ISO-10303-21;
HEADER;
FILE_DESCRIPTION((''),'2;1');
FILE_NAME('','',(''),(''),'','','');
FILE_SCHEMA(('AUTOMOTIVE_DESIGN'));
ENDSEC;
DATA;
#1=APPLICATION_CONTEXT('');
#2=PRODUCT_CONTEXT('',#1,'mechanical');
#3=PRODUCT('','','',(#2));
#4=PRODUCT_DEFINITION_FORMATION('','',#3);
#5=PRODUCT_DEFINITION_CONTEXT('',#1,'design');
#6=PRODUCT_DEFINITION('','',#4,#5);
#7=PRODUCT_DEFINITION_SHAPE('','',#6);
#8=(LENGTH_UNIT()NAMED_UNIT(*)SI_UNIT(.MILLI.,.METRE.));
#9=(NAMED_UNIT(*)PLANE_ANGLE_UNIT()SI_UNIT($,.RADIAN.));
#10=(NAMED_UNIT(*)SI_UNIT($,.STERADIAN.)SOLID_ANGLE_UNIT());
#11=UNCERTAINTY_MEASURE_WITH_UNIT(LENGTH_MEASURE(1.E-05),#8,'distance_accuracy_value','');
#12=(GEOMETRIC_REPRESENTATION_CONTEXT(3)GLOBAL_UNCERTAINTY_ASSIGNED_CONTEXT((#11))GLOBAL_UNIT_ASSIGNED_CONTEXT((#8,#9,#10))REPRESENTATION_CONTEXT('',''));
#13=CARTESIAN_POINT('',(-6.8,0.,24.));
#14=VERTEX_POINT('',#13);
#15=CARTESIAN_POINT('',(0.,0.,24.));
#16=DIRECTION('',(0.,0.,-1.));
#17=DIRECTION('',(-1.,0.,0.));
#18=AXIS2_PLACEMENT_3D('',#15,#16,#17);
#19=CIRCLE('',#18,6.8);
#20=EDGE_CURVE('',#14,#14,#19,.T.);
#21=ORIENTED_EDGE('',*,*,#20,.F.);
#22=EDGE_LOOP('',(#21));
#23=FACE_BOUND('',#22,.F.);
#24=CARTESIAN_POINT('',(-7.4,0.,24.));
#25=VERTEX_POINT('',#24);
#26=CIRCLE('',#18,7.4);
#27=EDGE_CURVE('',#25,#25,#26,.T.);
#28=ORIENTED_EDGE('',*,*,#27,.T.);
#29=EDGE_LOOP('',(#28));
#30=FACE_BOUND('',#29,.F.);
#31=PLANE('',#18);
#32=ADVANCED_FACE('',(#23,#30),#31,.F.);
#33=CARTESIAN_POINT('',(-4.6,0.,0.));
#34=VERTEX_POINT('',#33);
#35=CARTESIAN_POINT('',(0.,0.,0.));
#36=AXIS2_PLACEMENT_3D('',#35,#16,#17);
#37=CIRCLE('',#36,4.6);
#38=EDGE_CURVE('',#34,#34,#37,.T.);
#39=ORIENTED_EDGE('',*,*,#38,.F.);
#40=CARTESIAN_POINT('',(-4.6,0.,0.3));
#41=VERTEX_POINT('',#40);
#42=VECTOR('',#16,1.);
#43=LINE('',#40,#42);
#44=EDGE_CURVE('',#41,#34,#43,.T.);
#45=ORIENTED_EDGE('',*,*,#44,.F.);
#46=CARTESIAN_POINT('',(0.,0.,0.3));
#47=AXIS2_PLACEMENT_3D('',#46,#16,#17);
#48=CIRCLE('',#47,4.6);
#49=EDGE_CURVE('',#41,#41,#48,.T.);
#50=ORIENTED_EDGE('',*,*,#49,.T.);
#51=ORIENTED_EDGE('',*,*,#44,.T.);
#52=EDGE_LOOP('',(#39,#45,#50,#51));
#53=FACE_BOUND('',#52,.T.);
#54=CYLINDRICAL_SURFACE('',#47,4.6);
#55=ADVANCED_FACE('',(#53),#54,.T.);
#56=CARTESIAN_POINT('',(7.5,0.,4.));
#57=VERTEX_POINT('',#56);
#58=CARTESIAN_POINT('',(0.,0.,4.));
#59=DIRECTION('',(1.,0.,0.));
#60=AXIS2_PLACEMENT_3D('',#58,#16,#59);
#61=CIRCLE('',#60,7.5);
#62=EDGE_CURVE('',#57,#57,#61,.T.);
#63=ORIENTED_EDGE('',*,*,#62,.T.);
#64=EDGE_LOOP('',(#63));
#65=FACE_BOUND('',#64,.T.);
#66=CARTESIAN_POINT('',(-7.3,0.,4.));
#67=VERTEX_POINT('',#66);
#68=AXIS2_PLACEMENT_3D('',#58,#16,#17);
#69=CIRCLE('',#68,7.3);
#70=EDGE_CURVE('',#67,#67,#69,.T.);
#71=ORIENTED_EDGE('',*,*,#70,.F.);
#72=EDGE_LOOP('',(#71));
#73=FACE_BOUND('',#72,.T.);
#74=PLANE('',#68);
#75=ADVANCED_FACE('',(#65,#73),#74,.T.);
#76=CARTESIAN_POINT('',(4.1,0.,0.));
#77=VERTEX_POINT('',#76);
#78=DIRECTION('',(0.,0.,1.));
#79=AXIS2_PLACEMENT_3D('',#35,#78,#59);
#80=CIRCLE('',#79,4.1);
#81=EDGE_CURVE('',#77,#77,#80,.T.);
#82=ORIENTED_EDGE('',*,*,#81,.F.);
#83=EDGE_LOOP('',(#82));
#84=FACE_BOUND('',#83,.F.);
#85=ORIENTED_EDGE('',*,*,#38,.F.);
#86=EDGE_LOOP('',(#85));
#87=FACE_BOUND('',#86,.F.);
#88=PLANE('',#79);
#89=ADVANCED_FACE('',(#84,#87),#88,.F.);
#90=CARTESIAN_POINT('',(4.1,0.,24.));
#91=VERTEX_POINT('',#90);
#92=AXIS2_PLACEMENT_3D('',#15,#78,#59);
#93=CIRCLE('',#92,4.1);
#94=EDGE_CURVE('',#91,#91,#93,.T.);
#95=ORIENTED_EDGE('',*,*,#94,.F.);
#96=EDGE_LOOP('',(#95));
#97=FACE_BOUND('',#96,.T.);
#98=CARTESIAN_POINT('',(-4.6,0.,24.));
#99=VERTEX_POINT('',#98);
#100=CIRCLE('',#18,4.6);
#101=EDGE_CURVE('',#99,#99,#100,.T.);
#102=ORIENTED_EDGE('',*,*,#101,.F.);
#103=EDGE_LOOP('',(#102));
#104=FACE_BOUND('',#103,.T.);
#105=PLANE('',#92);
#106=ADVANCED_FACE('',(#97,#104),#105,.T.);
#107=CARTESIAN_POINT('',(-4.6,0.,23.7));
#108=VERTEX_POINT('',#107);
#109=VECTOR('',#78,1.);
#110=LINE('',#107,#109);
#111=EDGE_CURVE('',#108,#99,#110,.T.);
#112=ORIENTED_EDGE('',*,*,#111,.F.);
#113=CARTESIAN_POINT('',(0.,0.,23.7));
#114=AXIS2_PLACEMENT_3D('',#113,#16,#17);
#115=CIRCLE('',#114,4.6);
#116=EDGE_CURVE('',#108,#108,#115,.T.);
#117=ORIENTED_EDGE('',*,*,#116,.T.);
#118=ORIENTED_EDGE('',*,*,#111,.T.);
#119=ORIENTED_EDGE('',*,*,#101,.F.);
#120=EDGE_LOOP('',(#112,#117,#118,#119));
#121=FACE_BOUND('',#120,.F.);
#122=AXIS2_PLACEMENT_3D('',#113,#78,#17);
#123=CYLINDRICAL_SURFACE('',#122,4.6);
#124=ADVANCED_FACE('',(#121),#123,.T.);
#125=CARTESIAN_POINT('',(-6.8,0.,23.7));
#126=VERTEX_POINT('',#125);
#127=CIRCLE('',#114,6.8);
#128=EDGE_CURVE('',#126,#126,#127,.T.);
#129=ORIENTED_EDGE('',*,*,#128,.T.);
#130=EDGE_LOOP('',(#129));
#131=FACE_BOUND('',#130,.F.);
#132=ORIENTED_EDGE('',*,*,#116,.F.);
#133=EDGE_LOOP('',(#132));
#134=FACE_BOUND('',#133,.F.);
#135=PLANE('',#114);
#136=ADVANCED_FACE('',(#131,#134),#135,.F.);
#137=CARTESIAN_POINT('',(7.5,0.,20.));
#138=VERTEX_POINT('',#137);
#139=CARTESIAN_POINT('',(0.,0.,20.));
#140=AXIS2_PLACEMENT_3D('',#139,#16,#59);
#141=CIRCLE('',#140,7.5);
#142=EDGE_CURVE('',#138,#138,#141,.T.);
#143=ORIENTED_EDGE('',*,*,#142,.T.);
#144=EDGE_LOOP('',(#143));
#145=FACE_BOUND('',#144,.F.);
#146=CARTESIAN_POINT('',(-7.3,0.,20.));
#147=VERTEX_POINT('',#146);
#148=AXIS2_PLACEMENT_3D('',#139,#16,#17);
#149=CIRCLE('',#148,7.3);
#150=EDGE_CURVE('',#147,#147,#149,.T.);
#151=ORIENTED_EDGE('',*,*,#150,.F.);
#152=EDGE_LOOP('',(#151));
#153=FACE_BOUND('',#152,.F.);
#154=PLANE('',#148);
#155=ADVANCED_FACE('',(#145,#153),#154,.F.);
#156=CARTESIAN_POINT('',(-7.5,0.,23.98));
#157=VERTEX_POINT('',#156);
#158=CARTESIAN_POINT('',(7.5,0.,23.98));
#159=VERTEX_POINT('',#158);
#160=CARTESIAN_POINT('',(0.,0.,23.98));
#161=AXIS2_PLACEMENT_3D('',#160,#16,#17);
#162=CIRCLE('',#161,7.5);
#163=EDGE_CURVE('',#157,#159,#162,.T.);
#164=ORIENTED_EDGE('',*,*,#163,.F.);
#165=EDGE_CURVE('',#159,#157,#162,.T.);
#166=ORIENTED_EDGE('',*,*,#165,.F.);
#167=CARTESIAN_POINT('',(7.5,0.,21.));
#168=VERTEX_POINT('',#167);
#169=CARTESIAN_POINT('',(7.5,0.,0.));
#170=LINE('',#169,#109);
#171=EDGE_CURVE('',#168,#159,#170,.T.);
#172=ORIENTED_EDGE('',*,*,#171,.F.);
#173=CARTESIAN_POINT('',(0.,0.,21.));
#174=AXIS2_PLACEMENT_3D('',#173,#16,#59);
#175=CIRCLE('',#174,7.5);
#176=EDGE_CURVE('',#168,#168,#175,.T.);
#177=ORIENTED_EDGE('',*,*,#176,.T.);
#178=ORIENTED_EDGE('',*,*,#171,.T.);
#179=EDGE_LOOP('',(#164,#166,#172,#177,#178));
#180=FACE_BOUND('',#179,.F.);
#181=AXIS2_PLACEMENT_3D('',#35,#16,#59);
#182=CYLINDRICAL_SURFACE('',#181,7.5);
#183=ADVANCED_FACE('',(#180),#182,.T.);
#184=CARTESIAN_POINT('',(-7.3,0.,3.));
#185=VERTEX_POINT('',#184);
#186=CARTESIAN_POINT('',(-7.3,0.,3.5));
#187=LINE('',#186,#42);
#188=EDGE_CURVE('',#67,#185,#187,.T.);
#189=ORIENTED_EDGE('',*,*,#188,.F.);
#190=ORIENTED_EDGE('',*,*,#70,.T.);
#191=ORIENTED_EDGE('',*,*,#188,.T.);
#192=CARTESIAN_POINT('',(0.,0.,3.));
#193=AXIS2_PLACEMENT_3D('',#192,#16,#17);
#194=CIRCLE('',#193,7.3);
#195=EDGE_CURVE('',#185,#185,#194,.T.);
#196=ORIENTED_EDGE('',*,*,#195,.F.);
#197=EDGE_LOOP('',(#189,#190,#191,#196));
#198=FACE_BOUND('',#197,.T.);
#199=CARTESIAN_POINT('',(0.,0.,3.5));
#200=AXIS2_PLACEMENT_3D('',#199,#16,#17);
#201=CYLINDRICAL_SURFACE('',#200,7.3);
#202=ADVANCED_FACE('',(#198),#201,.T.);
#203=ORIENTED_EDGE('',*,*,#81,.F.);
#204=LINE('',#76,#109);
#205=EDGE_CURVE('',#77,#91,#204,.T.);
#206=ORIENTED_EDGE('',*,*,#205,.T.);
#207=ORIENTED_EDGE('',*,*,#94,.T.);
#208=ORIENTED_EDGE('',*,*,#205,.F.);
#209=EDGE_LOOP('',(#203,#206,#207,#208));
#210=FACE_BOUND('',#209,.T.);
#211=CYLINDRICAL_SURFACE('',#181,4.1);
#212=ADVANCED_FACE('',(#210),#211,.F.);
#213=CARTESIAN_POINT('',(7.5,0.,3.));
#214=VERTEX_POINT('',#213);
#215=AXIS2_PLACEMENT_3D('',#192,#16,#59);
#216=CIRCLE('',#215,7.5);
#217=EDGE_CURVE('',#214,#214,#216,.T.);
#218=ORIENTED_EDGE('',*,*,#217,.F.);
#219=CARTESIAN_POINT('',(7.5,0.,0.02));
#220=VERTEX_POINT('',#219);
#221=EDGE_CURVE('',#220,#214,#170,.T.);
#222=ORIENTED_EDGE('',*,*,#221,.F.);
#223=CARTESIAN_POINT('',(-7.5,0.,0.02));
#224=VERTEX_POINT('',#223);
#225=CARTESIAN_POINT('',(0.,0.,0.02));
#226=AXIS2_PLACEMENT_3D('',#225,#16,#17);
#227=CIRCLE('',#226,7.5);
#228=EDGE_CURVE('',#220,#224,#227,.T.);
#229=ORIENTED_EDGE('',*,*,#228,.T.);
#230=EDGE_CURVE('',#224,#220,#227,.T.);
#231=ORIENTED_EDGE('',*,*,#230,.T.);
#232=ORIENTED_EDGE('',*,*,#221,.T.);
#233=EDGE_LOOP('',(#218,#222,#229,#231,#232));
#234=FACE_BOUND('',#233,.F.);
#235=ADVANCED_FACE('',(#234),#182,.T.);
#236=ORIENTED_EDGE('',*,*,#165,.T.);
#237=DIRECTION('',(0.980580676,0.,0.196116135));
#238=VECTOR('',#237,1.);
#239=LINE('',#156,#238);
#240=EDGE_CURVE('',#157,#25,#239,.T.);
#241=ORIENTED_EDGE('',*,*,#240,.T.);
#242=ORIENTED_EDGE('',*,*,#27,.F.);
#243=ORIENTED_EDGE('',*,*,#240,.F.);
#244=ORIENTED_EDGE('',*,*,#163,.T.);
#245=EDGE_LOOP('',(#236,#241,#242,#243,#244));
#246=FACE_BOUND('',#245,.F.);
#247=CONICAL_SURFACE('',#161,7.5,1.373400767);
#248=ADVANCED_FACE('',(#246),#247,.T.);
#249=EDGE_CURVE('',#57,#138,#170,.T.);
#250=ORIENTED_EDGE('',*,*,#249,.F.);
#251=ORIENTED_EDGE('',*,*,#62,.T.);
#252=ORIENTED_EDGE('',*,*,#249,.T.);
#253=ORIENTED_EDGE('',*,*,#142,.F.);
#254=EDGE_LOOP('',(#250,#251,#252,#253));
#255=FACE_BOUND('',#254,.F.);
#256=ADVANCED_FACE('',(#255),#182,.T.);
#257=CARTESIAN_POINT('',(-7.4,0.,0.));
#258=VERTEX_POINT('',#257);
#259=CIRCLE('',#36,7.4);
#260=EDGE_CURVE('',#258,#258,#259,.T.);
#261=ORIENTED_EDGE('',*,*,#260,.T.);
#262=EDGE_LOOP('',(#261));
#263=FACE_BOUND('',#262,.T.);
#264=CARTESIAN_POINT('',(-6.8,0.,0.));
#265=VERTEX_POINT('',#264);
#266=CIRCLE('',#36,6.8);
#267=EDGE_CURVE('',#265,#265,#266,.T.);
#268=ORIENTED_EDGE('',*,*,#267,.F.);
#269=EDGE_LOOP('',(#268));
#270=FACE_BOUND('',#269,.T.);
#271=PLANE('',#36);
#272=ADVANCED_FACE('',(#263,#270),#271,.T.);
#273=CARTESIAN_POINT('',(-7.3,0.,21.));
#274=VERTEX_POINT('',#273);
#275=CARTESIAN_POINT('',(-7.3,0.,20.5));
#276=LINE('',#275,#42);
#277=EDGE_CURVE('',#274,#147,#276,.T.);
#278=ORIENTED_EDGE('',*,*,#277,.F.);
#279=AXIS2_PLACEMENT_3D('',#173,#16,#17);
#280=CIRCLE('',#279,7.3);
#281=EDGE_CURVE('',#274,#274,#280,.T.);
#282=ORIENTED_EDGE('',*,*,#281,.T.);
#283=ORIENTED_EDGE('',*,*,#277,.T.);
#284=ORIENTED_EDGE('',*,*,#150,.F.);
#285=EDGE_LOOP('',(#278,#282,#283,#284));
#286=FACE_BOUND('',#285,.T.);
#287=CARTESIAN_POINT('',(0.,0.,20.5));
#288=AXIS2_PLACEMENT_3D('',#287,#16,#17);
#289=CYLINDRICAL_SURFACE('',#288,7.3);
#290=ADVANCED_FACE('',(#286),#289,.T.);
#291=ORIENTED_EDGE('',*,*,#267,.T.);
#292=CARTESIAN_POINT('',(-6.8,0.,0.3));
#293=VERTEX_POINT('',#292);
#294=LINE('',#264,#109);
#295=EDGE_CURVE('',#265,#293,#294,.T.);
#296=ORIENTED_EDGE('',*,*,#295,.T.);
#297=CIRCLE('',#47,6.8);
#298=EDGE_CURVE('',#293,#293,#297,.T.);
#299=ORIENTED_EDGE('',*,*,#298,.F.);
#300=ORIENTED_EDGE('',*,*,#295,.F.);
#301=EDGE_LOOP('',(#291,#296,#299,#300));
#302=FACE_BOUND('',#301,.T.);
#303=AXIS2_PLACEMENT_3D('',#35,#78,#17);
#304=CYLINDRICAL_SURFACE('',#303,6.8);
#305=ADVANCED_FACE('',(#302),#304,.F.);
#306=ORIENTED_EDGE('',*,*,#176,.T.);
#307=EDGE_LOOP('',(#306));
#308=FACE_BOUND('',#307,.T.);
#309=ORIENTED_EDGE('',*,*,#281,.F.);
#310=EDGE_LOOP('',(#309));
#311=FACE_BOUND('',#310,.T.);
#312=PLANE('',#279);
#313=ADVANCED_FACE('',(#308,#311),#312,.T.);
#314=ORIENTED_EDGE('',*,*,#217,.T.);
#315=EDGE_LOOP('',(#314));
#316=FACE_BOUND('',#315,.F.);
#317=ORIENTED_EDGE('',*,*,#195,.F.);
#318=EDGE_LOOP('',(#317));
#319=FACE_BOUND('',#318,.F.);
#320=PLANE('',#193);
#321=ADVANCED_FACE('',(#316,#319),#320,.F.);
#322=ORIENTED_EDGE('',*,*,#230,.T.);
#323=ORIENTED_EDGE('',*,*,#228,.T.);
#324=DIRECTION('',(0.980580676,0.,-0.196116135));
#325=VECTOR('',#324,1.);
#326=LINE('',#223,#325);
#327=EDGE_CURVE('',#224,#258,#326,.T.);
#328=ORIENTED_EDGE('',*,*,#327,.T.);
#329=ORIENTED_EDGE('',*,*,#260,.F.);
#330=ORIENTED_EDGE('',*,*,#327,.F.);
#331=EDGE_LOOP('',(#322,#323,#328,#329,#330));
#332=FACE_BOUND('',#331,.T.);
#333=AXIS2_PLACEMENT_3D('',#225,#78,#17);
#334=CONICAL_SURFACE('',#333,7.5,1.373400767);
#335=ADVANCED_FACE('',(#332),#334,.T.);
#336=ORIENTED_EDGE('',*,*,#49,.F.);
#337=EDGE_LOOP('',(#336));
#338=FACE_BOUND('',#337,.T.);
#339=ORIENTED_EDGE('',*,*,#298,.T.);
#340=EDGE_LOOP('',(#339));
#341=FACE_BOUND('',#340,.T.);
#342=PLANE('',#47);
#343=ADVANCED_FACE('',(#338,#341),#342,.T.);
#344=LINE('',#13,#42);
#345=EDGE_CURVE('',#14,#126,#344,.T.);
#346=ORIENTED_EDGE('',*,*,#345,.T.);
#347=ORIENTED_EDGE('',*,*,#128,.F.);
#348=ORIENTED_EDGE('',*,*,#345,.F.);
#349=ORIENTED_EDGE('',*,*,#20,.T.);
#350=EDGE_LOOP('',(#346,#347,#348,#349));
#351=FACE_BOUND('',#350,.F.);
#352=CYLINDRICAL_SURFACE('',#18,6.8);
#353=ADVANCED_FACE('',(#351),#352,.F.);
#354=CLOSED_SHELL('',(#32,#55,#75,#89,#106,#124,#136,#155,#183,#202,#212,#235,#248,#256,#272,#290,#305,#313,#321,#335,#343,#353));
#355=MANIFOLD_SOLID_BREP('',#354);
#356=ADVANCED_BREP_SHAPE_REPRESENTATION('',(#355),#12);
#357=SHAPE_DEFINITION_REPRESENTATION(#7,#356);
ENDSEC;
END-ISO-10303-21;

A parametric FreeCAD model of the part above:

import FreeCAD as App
import Part
import Sketcher
Q = App.Units.Quantity


def add_polygon(sketch, points):
    """Adds a closed chain of lines whose ends are joined by coincident constraints."""
    first, n = sketch.GeometryCount, len(points)
    for a, b in zip(points, points[1:] + points[:1]):
        sketch.addGeometry(Part.LineSegment(App.Vector(*a, 0), App.Vector(*b, 0)), False)
    for i in range(n):
        sketch.addConstraint(Sketcher.Constraint("Coincident", first + i, 2, first + (i + 1) % n, 1))

doc = App.newDocument("Part")
body = doc.addObject("PartDesign::Body", "Body")

sketch1 = body.newObject("Sketcher::SketchObject", "Sketch")
sketch1.AttachmentSupport = (doc.getObject("XY_Plane"), [""])
sketch1.MapMode = "FlatFace"
sketch1.addGeometry(Part.Circle(App.Vector(0, 0, 0), App.Vector(0, 0, 1), 7.5), False)
sketch1.addGeometry(Part.Circle(App.Vector(0, 0, 0), App.Vector(0, 0, 1), 4.1), False)
sketch1.addConstraint(Sketcher.Constraint("Coincident", 0, 3, -1, 1))
sketch1.addConstraint(Sketcher.Constraint("Coincident", 1, 3, -1, 1))
sketch1.addConstraint(Sketcher.Constraint("Diameter", 0, Q("15 mm")))
sketch1.addConstraint(Sketcher.Constraint("Diameter", 1, Q("8.2 mm")))
pad1 = body.newObject("PartDesign::Pad", "Pad")
pad1.Profile = sketch1
pad1.Length = 24

sketch2 = body.newObject("Sketcher::SketchObject", "Sketch001")
sketch2.AttachmentSupport = (doc.getObject("XZ_Plane"), [""])
sketch2.MapMode = "FlatFace"
add_polygon(sketch2, [(-7.5, 0.02), (-7.4, 0), (-6.8, 0), (-6.8, 0.3), (-4.6, 0.3), (-4.6, 0), (-4.1, 0), (-4.1, -0.7), (-7.5, -0.7)])
add_polygon(sketch2, [(-7.5, 23.98), (-7.5, 24.7), (-4.1, 24.7), (-4.1, 24), (-4.6, 24), (-4.6, 23.7), (-6.8, 23.7), (-6.8, 24), (-7.4, 24)])
add_polygon(sketch2, [(-7.7, 3), (-7.7, 4), (-7.3, 4), (-7.3, 3)])
add_polygon(sketch2, [(-7.7, 20), (-7.7, 21), (-7.3, 21), (-7.3, 20)])
sketch2.addConstraint(Sketcher.Constraint("Horizontal", 1))
sketch2.addConstraint(Sketcher.Constraint("Vertical", 2))
sketch2.addConstraint(Sketcher.Constraint("Horizontal", 3))
sketch2.addConstraint(Sketcher.Constraint("Vertical", 4))
sketch2.addConstraint(Sketcher.Constraint("Horizontal", 5))
sketch2.addConstraint(Sketcher.Constraint("Vertical", 6))
sketch2.addConstraint(Sketcher.Constraint("Horizontal", 7))
sketch2.addConstraint(Sketcher.Constraint("Vertical", 8))
sketch2.addConstraint(Sketcher.Constraint("Vertical", 9))
sketch2.addConstraint(Sketcher.Constraint("Horizontal", 10))
sketch2.addConstraint(Sketcher.Constraint("Vertical", 11))
sketch2.addConstraint(Sketcher.Constraint("Horizontal", 12))
sketch2.addConstraint(Sketcher.Constraint("Vertical", 13))
sketch2.addConstraint(Sketcher.Constraint("Horizontal", 14))
sketch2.addConstraint(Sketcher.Constraint("Vertical", 15))
sketch2.addConstraint(Sketcher.Constraint("Horizontal", 16))
sketch2.addConstraint(Sketcher.Constraint("Vertical", 18))
sketch2.addConstraint(Sketcher.Constraint("Horizontal", 19))
sketch2.addConstraint(Sketcher.Constraint("Vertical", 20))
sketch2.addConstraint(Sketcher.Constraint("Horizontal", 21))
sketch2.addConstraint(Sketcher.Constraint("Vertical", 22))
sketch2.addConstraint(Sketcher.Constraint("Horizontal", 23))
sketch2.addConstraint(Sketcher.Constraint("Vertical", 24))
sketch2.addConstraint(Sketcher.Constraint("Horizontal", 25))
sketch2.addConstraint(Sketcher.Constraint("PointOnObject", 0, 2, -1))
sketch2.addConstraint(Sketcher.Constraint("PointOnObject", 4, 2, -1))
sketch2.addConstraint(Sketcher.Constraint("Horizontal", 12, 2, 15, 2))
sketch2.addConstraint(Sketcher.Constraint("Vertical", 8, 2, 9, 2))
sketch2.addConstraint(Sketcher.Constraint("Vertical", 6, 2, 10, 2))
sketch2.addConstraint(Sketcher.Constraint("Vertical", 4, 2, 12, 2))
sketch2.addConstraint(Sketcher.Constraint("Vertical", 2, 2, 14, 2))
sketch2.addConstraint(Sketcher.Constraint("Vertical", 0, 2, 16, 2))
sketch2.addConstraint(Sketcher.Constraint("Vertical", 21, 2, 22, 2))
sketch2.addConstraint(Sketcher.Constraint("Vertical", 20, 2, 23, 2))
sketch2.addConstraint(Sketcher.Constraint("Equal", 8, 9))
sketch2.addConstraint(Sketcher.Constraint("Equal", 6, 11))
sketch2.addConstraint(Sketcher.Constraint("Equal", 4, 13))
sketch2.addConstraint(Sketcher.Constraint("Equal", 20, 22))
sketch2.addConstraint(Sketcher.Constraint("DistanceY", 18, 1, 18, 2, Q("1 mm")))
sketch2.addConstraint(Sketcher.Constraint("DistanceX", 1, 1, 1, 2, Q("0.6 mm")))
sketch2.addConstraint(Sketcher.Constraint("DistanceX", 3, 1, 3, 2, Q("2.2 mm")))
sketch2.addConstraint(Sketcher.Constraint("DistanceX", 5, 1, 5, 2, Q("0.5 mm")))
sketch2.addConstraint(Sketcher.Constraint("DistanceX", 7, 2, 7, 1, Q("3.4 mm")))
sketch2.addConstraint(Sketcher.Constraint("DistanceX", 19, 1, 19, 2, Q("0.4 mm")))
sketch2.addConstraint(Sketcher.Constraint("DistanceY", 2, 1, 2, 2, Q("0.3 mm")))
sketch2.addConstraint(Sketcher.Constraint("DistanceY", 6, 2, 6, 1, Q("0.7 mm")))
sketch2.addConstraint(Sketcher.Constraint("DistanceY", -1, 1, 11, 2, Q("24 mm")))
sketch2.addConstraint(Sketcher.Constraint("DistanceY", -1, 1, 18, 2, Q("4 mm")))
sketch2.addConstraint(Sketcher.Constraint("DistanceY", -1, 1, 22, 2, Q("21 mm")))
sketch2.addConstraint(Sketcher.Constraint("DistanceY", 8, 1, 8, 2, Q("0.72 mm")))
sketch2.addConstraint(Sketcher.Constraint("DistanceX", 0, 2, -1, 1, Q("7.4 mm")))
sketch2.addConstraint(Sketcher.Constraint("DistanceX", 18, 2, -1, 1, Q("7.7 mm")))
groove = body.newObject("PartDesign::Groove", "Groove")
groove.Profile = sketch2
groove.ReferenceAxis = (sketch2, ["V_Axis"])
groove.Angle = 360

doc.recompute()
